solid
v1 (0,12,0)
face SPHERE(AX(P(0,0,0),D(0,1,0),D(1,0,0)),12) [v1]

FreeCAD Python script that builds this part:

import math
import FreeCAD as App
import Part
import Sketcher
Q = App.Units.Quantity

doc = App.newDocument("Part")
body = doc.addObject("PartDesign::Body", "Body")

# Sketch on XY plane
sketch1 = body.newObject("Sketcher::SketchObject", "Sketch")
sketch1.AttachmentSupport = (doc.getObject("XY_Plane"), [""])
sketch1.MapMode = "FlatFace"
sketch1.addGeometry([
    Part.LineSegment(App.Vector(0, -12, 0), App.Vector(0, 12, 0)),
    Part.ArcOfCircle(Part.Circle(App.Vector(0, 0, 0), App.Vector(0, 0, 1), 12), math.radians(90), math.radians(270)),
], False)
sketch1.addConstraint([
    Sketcher.Constraint("Coincident", 0, 1, 1, 2),
    Sketcher.Constraint("Coincident", 1, 1, 0, 2),
    Sketcher.Constraint("Vertical", 0),
    Sketcher.Constraint("Coincident", 1, 3, -1, 1),
    Sketcher.Constraint("PointOnObject", 0, 1, -2),
    Sketcher.Constraint("Radius", 1, Q("12 mm")),
])
revolution = body.newObject("PartDesign::Revolution", "Revolution")
revolution.Profile = sketch1
revolution.ReferenceAxis = (sketch1, ["V_Axis"])
revolution.Angle = 360

doc.recompute()
